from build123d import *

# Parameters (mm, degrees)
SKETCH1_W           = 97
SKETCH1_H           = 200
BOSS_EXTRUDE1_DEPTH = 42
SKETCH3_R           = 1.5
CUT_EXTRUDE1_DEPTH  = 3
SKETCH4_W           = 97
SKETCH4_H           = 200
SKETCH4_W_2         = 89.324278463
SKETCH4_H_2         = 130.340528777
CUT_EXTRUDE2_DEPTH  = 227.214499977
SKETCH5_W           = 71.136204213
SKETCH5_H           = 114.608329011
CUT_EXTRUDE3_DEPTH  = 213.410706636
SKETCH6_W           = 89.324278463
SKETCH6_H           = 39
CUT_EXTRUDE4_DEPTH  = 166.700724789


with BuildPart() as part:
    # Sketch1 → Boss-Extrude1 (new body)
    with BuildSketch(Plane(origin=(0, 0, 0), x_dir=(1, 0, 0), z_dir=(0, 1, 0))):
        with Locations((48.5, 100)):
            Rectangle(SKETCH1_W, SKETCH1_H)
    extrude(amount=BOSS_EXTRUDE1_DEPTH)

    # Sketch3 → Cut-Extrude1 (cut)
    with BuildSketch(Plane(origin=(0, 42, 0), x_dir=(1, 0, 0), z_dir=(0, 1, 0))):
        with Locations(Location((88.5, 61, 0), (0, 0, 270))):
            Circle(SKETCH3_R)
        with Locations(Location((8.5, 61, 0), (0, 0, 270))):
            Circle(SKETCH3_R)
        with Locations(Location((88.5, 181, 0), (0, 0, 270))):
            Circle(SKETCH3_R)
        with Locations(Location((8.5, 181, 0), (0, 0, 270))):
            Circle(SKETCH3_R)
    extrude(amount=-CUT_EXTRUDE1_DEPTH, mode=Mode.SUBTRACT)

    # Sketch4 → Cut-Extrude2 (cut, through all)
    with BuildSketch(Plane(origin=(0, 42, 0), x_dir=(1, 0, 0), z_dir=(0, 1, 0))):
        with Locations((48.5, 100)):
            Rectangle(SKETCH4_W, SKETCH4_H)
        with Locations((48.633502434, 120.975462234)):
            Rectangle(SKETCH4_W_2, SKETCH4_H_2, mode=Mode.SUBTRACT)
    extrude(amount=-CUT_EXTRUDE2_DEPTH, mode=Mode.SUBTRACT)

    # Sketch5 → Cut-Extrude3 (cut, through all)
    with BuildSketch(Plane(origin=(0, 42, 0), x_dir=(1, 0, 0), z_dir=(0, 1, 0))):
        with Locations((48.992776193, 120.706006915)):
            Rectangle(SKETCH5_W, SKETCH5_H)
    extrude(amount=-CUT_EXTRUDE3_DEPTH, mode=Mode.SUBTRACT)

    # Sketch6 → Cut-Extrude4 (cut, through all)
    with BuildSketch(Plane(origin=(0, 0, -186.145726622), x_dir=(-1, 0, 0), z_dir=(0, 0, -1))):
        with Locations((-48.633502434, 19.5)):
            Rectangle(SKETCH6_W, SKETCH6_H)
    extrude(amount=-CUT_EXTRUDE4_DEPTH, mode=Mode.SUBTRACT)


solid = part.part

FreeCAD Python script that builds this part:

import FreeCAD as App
import Part
import Sketcher
from FreeCAD import Vector
Q = App.Units.Quantity


def add_polygon(sketch, points):
    """Adds a closed chain of lines whose ends are joined by coincident constraints."""
    first, n = sketch.GeometryCount, len(points)
    for a, b in zip(points, points[1:] + points[:1]):
        sketch.addGeometry(Part.LineSegment(App.Vector(*a, 0), App.Vector(*b, 0)), False)
    for i in range(n):
        sketch.addConstraint(Sketcher.Constraint("Coincident", first + i, 2, first + (i + 1) % n, 1))

doc = App.newDocument("Part")
params = doc.addObject("Spreadsheet::Sheet", "Params")
for row, (alias, value) in enumerate([
    ("sketch1_width", "97 mm"),
    ("sketch1_height", "200 mm"),
    ("pad1_length", "42 mm"),
    ("sketch2_diameter", "3 mm"),
    ("pocket1_length", "3 mm"),
    ("sketch3_width", "97 mm"),
    ("sketch3_height", "200 mm"),
    ("sketch5_height", "39 mm"),
], start=1):
    params.set(f"A{row}", alias)
    params.set(f"B{row}", "=" + value)
    params.setAlias(f"B{row}", alias)

body = doc.addObject("PartDesign::Body", "Body")

sketch1 = body.newObject("Sketcher::SketchObject", "Sketch")
sketch1.AttachmentSupport = (doc.getObject("XZ_Plane"), [""])
sketch1.MapMode = "FlatFace"
add_polygon(sketch1, [(0, -200), (0, 0), (97, 0), (97, -200)])
sketch1.addConstraint([
    Sketcher.Constraint("Vertical", 0),
    Sketcher.Constraint("Horizontal", 1),
    Sketcher.Constraint("Vertical", 2),
    Sketcher.Constraint("Horizontal", 3),
    Sketcher.Constraint("Coincident", 0, 2, -1, 1),
    Sketcher.Constraint("DistanceX", 1, 1, 1, 2, Q("97 mm")),
    Sketcher.Constraint("DistanceY", 0, 1, 0, 2, Q("200 mm")),
])
sketch1.setExpression("Constraints[9]", "Params.sketch1_width")
sketch1.setExpression("Constraints[10]", "Params.sketch1_height")
pad1 = body.newObject("PartDesign::Pad", "Pad")
pad1.Profile = sketch1
pad1.setExpression("Length", "Params.pad1_length")
pad1.Reversed = True

sketch2 = body.newObject("Sketcher::SketchObject", "Sketch001")
sketch2.AttachmentSupport = (doc.getObject("XZ_Plane"), [""])
sketch2.MapMode = "FlatFace"
sketch2.AttachmentOffset = App.Placement(Vector(0, 0, -42), App.Rotation())
sketch2.addGeometry([
    Part.Circle(Vector(88.5, -61, 0), Vector(0, 0, 1), 1.5),
    Part.Circle(Vector(8.5, -61, 0), Vector(0, 0, 1), 1.5),
    Part.Circle(Vector(88.5, -181, 0), Vector(0, 0, 1), 1.5),
    Part.Circle(Vector(8.5, -181, 0), Vector(0, 0, 1), 1.5),
], False)
sketch2.addConstraint([
    Sketcher.Constraint("Equal", 0, 1),
    Sketcher.Constraint("Equal", 1, 2),
    Sketcher.Constraint("Equal", 2, 3),
    Sketcher.Constraint("Horizontal", 0, 3, 1, 3),
    Sketcher.Constraint("Horizontal", 2, 3, 3, 3),
    Sketcher.Constraint("Vertical", 0, 3, 2, 3),
    Sketcher.Constraint("Vertical", 1, 3, 3, 3),
    Sketcher.Constraint("Diameter", 0, Q("3 mm")),
    Sketcher.Constraint("DistanceY", 0, 3, -1, 1, Q("61 mm")),
    Sketcher.Constraint("DistanceY", 2, 3, -1, 1, Q("181 mm")),
    Sketcher.Constraint("DistanceX", 1, 3, 0, 3, Q("80 mm")),
    Sketcher.Constraint("DistanceX", -1, 1, 0, 3, Q("88.5 mm")),
])
sketch2.setExpression("Constraints[7]", "Params.sketch2_diameter")
pocket1 = body.newObject("PartDesign::Pocket", "Pocket")
pocket1.Profile = sketch2
pocket1.setExpression("Length", "Params.pocket1_length")
pocket1.Reversed = True

sketch3 = body.newObject("Sketcher::SketchObject", "Sketch002")
sketch3.AttachmentSupport = (doc.getObject("XZ_Plane"), [""])
sketch3.MapMode = "FlatFace"
sketch3.AttachmentOffset = App.Placement(Vector(0, 0, -42), App.Rotation())
add_polygon(sketch3, [(0, -200), (0, 0), (97, 0), (97, -200)])
add_polygon(sketch3, [(93, -56), (4, -56), (4, -186), (93, -186)])
sketch3.addConstraint([
    Sketcher.Constraint("Vertical", 0),
    Sketcher.Constraint("Horizontal", 1),
    Sketcher.Constraint("Vertical", 2),
    Sketcher.Constraint("Horizontal", 3),
    Sketcher.Constraint("Horizontal", 4),
    Sketcher.Constraint("Vertical", 5),
    Sketcher.Constraint("Horizontal", 6),
    Sketcher.Constraint("Vertical", 7),
    Sketcher.Constraint("Coincident", 0, 2, -1, 1),
    Sketcher.Constraint("DistanceX", 1, 1, 1, 2, Q("97 mm")),
    Sketcher.Constraint("DistanceY", 0, 1, 0, 2, Q("200 mm")),
    Sketcher.Constraint("DistanceX", 4, 2, 4, 1, Q("89.324278 mm")),
    Sketcher.Constraint("DistanceY", 5, 2, 5, 1, Q("130.340529 mm")),
    Sketcher.Constraint("DistanceX", -1, 1, 6, 2, Q("93.295642 mm")),
    Sketcher.Constraint("DistanceY", 4, 2, -1, 1, Q("55.805198 mm")),
])
sketch3.setExpression("Constraints[17]", "Params.sketch3_width")
sketch3.setExpression("Constraints[18]", "Params.sketch3_height")
pocket2 = body.newObject("PartDesign::Pocket", "Pocket001")
pocket2.Profile = sketch3
pocket2.Type = "ThroughAll"
pocket2.Reversed = True

sketch4 = body.newObject("Sketcher::SketchObject", "Sketch003")
sketch4.AttachmentSupport = (doc.getObject("XZ_Plane"), [""])
sketch4.MapMode = "FlatFace"
sketch4.AttachmentOffset = App.Placement(Vector(0, 0, -42), App.Rotation())
add_polygon(sketch4, [(13, -178), (13, -63), (85, -63), (85, -178)])
sketch4.addConstraint([
    Sketcher.Constraint("Vertical", 0),
    Sketcher.Constraint("Horizontal", 1),
    Sketcher.Constraint("Vertical", 2),
    Sketcher.Constraint("Horizontal", 3),
    Sketcher.Constraint("DistanceY", 0, 1, 0, 2, Q("114.608329 mm")),
    Sketcher.Constraint("DistanceX", 1, 1, 1, 2, Q("71.136204 mm")),
    Sketcher.Constraint("DistanceX", -1, 1, 1, 2, Q("84.560878 mm")),
    Sketcher.Constraint("DistanceY", 2, 2, -1, 1, Q("178.010171 mm")),
])
pocket3 = body.newObject("PartDesign::Pocket", "Pocket002")
pocket3.Profile = sketch4
pocket3.Type = "ThroughAll"
pocket3.Reversed = True

sketch5 = body.newObject("Sketcher::SketchObject", "Sketch004")
sketch5.AttachmentSupport = (doc.getObject("XY_Plane"), [""])
sketch5.MapMode = "FlatFace"
sketch5.AttachmentOffset = App.Placement(Vector(0, 0, -186.145727), App.Rotation())
add_polygon(sketch5, [(93, 39), (93, 0), (4, 0), (4, 39)])
sketch5.addConstraint([
    Sketcher.Constraint("Vertical", 0),
    Sketcher.Constraint("Horizontal", 1),
    Sketcher.Constraint("Vertical", 2),
    Sketcher.Constraint("Horizontal", 3),
    Sketcher.Constraint("PointOnObject", 0, 2, -1),
    Sketcher.Constraint("DistanceY", 0, 2, 0, 1, Q("39 mm")),
    Sketcher.Constraint("DistanceX", 1, 2, 1, 1, Q("89.324278 mm")),
    Sketcher.Constraint("DistanceX", -1, 1, 0, 2, Q("93.295642 mm")),
])
sketch5.setExpression("Constraints[9]", "Params.sketch5_height")
pocket4 = body.newObject("PartDesign::Pocket", "Pocket003")
pocket4.Profile = sketch5
pocket4.Type = "ThroughAll"
pocket4.Reversed = True

doc.recompute()
